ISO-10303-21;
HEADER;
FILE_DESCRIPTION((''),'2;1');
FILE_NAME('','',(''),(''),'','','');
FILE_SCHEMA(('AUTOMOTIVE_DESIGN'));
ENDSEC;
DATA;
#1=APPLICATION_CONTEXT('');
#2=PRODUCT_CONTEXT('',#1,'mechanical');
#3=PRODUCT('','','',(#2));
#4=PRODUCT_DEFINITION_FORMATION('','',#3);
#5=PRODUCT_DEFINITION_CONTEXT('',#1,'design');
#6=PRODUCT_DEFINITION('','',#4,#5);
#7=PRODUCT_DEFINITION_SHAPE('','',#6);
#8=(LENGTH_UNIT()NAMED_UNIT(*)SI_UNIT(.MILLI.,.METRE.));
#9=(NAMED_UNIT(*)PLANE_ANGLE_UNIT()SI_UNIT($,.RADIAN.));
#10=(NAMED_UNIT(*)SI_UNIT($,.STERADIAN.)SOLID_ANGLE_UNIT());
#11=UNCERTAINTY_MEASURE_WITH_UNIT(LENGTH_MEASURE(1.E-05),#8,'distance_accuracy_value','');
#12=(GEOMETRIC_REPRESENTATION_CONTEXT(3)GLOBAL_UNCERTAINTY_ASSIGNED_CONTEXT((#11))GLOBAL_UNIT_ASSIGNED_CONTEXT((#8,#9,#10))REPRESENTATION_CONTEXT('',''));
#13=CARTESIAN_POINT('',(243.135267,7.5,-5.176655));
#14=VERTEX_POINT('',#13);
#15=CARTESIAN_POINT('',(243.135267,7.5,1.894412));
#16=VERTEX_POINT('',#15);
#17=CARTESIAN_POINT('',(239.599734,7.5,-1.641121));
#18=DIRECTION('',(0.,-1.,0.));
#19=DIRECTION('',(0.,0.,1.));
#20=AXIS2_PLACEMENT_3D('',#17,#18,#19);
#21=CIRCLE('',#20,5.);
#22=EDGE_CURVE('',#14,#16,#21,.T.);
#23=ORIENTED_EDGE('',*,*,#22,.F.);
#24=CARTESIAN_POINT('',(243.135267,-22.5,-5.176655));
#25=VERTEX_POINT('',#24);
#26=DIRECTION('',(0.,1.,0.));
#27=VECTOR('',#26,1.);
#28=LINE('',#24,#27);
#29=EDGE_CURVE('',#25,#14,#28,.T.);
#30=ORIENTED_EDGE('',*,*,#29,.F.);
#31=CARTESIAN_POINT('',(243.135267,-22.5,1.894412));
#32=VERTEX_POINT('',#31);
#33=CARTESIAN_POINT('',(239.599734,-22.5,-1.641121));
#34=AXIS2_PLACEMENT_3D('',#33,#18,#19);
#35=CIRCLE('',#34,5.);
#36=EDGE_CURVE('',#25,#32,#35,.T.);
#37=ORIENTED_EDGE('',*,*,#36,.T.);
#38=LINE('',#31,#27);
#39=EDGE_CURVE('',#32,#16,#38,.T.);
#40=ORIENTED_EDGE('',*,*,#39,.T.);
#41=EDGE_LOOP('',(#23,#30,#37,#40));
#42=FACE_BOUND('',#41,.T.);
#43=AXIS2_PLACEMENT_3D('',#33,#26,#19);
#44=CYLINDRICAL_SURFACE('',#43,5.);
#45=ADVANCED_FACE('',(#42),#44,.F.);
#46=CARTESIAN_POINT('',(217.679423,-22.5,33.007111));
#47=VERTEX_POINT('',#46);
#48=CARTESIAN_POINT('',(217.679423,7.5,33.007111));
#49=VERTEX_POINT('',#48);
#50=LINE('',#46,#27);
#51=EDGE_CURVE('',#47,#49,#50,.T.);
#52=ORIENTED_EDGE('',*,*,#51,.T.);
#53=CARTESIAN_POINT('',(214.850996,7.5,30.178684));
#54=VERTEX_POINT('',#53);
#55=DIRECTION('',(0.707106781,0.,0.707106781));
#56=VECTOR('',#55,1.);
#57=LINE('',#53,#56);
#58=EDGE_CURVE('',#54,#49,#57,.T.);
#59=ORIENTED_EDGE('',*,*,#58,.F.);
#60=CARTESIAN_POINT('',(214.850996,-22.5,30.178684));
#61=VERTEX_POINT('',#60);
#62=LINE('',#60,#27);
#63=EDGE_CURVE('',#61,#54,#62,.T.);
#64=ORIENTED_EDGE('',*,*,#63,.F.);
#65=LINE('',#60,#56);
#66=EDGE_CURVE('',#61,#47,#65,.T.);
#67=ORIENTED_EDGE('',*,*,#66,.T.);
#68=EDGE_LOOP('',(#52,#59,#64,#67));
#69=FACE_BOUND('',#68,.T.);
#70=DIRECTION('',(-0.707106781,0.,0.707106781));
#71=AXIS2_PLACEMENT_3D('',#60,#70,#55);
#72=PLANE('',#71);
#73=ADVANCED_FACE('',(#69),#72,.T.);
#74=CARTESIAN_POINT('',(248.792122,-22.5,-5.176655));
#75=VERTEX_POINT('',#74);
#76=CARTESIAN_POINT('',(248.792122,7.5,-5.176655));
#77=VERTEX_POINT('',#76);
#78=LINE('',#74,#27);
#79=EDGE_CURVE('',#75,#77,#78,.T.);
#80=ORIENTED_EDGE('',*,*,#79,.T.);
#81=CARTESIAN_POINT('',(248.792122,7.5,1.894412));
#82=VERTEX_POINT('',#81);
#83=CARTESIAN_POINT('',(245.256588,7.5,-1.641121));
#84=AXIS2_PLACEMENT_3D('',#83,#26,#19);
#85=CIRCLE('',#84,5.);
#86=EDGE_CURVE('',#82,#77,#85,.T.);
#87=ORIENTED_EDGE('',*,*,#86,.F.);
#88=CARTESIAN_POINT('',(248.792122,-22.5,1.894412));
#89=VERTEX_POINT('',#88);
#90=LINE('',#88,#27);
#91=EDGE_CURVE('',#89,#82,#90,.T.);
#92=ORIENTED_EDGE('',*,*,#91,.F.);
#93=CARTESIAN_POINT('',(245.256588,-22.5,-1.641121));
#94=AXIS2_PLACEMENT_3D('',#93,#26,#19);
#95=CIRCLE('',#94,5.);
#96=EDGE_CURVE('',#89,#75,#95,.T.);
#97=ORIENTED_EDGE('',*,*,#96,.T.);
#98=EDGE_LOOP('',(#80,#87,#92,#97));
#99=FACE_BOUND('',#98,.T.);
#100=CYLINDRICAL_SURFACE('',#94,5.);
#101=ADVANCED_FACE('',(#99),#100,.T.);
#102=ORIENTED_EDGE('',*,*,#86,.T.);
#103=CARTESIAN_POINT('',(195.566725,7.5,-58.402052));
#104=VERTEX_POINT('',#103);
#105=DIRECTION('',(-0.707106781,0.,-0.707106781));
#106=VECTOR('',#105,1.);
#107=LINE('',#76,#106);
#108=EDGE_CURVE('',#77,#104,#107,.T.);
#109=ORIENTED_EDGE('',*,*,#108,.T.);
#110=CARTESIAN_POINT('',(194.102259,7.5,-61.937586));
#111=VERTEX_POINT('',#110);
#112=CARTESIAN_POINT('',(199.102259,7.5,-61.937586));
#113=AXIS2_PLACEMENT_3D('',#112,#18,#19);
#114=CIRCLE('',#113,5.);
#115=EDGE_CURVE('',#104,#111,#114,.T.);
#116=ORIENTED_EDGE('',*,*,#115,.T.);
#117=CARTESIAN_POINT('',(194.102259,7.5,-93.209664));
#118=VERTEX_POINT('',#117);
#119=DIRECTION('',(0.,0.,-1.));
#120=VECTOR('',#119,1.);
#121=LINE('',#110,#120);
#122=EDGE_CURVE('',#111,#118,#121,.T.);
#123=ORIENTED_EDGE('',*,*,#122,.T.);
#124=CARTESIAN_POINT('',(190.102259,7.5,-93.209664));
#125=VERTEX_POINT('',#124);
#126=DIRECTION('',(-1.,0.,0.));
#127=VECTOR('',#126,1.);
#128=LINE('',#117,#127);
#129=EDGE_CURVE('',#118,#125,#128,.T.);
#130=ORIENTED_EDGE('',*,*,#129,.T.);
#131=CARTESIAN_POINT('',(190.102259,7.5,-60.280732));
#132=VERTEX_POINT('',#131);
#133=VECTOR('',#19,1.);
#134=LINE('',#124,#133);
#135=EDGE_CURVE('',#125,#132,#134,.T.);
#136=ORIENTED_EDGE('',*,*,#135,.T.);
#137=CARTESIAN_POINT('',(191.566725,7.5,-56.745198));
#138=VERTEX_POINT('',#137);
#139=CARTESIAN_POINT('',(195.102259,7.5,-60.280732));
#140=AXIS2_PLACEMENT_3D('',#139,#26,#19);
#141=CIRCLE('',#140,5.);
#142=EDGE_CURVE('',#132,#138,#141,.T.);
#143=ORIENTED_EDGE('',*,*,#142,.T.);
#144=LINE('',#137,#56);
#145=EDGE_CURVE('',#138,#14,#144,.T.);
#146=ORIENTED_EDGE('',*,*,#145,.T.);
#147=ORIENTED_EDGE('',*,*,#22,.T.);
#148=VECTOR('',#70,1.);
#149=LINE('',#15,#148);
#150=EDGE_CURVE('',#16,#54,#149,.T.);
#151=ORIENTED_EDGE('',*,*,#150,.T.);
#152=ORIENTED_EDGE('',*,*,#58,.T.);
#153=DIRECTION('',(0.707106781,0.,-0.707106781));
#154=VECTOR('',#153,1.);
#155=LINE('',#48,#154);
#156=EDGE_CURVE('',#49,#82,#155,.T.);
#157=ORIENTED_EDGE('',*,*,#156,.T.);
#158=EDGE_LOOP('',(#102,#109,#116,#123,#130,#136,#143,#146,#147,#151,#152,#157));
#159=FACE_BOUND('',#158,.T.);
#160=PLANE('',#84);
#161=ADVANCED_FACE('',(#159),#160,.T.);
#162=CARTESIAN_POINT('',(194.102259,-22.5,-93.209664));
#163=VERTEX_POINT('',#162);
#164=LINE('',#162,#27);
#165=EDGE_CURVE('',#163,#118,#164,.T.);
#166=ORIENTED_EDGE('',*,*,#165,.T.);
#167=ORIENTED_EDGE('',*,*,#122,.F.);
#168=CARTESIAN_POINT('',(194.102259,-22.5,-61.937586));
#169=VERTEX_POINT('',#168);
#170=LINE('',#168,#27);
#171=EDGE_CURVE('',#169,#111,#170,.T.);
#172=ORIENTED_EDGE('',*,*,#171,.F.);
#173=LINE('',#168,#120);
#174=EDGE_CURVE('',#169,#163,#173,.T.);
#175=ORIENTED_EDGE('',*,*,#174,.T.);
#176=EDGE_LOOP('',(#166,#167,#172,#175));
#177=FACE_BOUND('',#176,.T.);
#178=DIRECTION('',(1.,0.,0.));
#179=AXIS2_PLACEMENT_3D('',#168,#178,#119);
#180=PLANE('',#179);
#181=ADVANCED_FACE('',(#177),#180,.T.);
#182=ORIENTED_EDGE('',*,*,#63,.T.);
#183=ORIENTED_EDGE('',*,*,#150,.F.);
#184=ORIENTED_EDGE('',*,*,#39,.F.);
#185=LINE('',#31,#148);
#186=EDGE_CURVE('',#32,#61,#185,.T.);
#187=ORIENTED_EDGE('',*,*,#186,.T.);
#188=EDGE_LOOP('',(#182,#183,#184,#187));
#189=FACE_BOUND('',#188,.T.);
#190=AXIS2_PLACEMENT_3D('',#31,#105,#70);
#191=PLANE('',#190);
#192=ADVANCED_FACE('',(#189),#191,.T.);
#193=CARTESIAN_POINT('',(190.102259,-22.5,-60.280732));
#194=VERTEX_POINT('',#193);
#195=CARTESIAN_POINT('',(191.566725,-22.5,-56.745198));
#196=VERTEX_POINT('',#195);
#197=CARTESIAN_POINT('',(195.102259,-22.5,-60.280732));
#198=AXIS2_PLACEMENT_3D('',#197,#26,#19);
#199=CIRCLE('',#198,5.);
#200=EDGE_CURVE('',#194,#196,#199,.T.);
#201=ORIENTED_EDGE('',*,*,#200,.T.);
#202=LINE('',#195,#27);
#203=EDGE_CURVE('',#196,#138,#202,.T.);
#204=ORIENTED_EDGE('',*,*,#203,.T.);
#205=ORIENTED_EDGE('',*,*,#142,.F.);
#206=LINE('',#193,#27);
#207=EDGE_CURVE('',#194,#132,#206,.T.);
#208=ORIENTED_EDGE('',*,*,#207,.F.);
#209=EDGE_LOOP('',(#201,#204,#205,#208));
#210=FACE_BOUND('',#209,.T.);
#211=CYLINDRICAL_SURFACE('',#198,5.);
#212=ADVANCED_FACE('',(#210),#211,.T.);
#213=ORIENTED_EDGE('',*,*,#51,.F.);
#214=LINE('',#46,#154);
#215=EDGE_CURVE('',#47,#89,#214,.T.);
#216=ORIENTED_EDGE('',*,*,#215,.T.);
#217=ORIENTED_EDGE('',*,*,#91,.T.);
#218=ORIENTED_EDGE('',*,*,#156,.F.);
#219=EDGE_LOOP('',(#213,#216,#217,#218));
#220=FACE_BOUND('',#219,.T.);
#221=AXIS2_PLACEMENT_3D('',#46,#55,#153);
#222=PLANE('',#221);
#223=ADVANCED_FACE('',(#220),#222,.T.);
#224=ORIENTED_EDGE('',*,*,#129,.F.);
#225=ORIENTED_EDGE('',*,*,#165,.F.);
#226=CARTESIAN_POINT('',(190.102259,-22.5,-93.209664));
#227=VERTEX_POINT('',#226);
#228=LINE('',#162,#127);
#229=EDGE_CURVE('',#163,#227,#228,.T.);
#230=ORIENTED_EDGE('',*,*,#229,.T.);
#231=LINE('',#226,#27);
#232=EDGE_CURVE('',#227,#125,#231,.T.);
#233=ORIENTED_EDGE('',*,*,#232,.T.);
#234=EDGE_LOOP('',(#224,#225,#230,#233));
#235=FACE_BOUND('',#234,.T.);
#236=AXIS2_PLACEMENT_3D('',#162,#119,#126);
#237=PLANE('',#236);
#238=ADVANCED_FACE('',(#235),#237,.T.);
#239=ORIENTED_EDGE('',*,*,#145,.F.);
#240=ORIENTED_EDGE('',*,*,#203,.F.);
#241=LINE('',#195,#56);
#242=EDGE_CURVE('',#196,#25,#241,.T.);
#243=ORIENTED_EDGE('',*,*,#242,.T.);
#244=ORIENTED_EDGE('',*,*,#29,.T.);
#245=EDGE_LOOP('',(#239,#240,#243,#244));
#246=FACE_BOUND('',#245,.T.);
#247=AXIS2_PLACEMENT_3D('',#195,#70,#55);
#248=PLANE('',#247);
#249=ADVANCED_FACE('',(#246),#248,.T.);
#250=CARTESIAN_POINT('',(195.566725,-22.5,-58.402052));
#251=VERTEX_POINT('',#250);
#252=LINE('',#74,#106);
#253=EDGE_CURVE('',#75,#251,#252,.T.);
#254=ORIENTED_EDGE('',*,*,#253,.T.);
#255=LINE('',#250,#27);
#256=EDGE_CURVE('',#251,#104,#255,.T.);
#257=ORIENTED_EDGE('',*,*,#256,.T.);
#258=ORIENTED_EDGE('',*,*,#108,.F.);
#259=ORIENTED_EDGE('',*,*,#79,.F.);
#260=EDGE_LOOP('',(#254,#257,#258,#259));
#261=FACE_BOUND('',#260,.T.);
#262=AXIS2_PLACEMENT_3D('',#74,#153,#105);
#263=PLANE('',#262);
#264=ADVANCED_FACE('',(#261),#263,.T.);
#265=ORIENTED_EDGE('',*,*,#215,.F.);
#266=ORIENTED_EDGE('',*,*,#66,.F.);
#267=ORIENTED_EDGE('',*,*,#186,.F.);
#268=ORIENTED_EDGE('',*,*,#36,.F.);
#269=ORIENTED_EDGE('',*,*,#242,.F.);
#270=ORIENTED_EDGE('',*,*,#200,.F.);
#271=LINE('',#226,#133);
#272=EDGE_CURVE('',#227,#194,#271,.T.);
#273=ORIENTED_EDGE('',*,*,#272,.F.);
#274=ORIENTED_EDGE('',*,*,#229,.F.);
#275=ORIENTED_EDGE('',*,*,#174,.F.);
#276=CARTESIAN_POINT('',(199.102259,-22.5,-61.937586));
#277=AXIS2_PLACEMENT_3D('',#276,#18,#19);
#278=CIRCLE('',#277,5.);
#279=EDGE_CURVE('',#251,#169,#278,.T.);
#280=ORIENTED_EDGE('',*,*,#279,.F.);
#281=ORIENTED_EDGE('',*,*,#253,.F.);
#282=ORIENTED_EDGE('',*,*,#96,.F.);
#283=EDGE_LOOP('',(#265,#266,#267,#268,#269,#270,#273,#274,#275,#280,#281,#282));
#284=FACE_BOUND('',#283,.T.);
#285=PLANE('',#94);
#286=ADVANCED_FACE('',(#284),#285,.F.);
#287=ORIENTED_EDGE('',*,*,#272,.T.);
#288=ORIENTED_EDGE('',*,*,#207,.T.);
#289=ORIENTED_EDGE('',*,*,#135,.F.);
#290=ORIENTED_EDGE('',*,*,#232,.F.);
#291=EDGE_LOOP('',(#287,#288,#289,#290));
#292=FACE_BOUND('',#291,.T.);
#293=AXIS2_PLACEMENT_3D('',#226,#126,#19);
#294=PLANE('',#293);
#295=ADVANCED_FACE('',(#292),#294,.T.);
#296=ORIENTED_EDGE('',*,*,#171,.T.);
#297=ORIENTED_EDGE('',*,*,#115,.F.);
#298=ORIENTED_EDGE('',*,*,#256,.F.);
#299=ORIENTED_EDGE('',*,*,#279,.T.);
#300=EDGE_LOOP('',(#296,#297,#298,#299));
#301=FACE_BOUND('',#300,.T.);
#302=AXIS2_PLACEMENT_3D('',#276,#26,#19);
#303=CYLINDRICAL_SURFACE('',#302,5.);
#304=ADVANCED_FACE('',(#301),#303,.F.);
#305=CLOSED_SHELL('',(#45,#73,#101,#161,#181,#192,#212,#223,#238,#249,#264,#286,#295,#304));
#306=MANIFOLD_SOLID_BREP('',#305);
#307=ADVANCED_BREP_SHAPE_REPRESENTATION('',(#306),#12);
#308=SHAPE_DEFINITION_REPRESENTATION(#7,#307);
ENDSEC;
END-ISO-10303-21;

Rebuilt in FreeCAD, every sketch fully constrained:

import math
import FreeCAD as App
import Part
import Sketcher

V = App.Vector
Q = App.Units.Quantity

doc = App.newDocument("Part")
body = doc.addObject("PartDesign::Body", "Body")

# Sketch on XZ plane
sketch1 = doc.addObject("Sketcher::SketchObject", "Sketch")
body.addObject(sketch1)
sketch1.AttachmentSupport = (doc.XZ_Plane, [""])
sketch1.MapMode = "FlatFace"
sketch1.AttachmentOffset = App.Placement(V(0, 0, -7.5), App.Rotation())
sketch1.addGeometry([
    Part.LineSegment(V(248.792122, -5.176655, 0), V(195.566725, -58.402052, 0)),  # 0
    Part.ArcOfCircle(Part.Circle(V(199.102259, -61.937586, 0), V(0, 0, 1), 5), math.radians(135), math.radians(180)),  # 1
    Part.LineSegment(V(194.102259, -61.937586, 0), V(194.102259, -93.209664, 0)),  # 2
    Part.LineSegment(V(194.102259, -93.209664, 0), V(190.102259, -93.209664, 0)),  # 3
    Part.LineSegment(V(190.102259, -93.209664, 0), V(190.102259, -60.280732, 0)),  # 4
    Part.ArcOfCircle(Part.Circle(V(195.102259, -60.280732, 0), V(0, 0, 1), 5), math.radians(135), math.radians(180)),  # 5
    Part.LineSegment(V(191.566725, -56.745198, 0), V(243.135267, -5.176655, 0)),  # 6
    Part.ArcOfCircle(Part.Circle(V(239.599734, -1.641121, 0), V(0, 0, 1), 5), math.radians(-45), math.radians(45)),  # 7
    Part.LineSegment(V(243.135267, 1.894412, 0), V(214.850996, 30.178684, 0)),  # 8
    Part.LineSegment(V(214.850996, 30.178684, 0), V(217.679423, 33.007111, 0)),  # 9
    Part.LineSegment(V(217.679423, 33.007111, 0), V(248.792122, 1.894412, 0)),  # 10
    Part.ArcOfCircle(Part.Circle(V(245.256588, -1.641121, 0), V(0, 0, 1), 5), math.radians(-45), math.radians(45)),  # 11
], False)
sketch1.addConstraint([
    Sketcher.Constraint("Tangent", 0, 2, 1, 1),
    Sketcher.Constraint("Tangent", 1, 2, 2, 1),
    Sketcher.Constraint("Coincident", 2, 2, 3, 1),
    Sketcher.Constraint("Coincident", 3, 2, 4, 1),
    Sketcher.Constraint("Tangent", 4, 2, 5, 2),
    Sketcher.Constraint("Tangent", 5, 1, 6, 1),
    Sketcher.Constraint("Tangent", 6, 2, 7, 1),
    Sketcher.Constraint("Tangent", 7, 2, 8, 1),
    Sketcher.Constraint("Coincident", 8, 2, 9, 1),
    Sketcher.Constraint("Coincident", 9, 2, 10, 1),
    Sketcher.Constraint("Tangent", 10, 2, 11, 2),
    Sketcher.Constraint("Tangent", 11, 1, 0, 1),
    Sketcher.Constraint("Vertical", 2),
    Sketcher.Constraint("Horizontal", 3),
    Sketcher.Constraint("Vertical", 4),
    Sketcher.Constraint("Equal", 1, 5),
    Sketcher.Constraint("Equal", 5, 7),
    Sketcher.Constraint("Equal", 7, 11),
    Sketcher.Constraint("Parallel", 0, 6),
    Sketcher.Constraint("Perpendicular", 6, 8),
    Sketcher.Constraint("Perpendicular", 8, 9),
    Sketcher.Constraint("Perpendicular", 9, 10),
    Sketcher.Constraint("Horizontal", 7, 3, 11, 3),
    Sketcher.Constraint("Vertical", 6, 2, 7, 2),
    Sketcher.Constraint("Radius", 1, Q("5 mm")),
    Sketcher.Constraint("DistanceX", 3, 2, 3, 1, Q("4 mm")),
    Sketcher.Constraint("Distance", 8, Q("40 mm")),
    Sketcher.Constraint("Distance", 9, Q("4 mm")),
    Sketcher.Constraint("DistanceY", 1, 3, 7, 2, Q("63.831998 mm")),
    Sketcher.Constraint("DistanceY", 2, 2, 2, 1, Q("31.272078 mm")),
    Sketcher.Constraint("DistanceX", -1, 1, 1, 3, Q("199.102259 mm")),
    Sketcher.Constraint("DistanceY", 5, 3, -1, 1, Q("60.280732 mm")),
])
pad1 = doc.addObject("PartDesign::Pad", "Pad")
body.addObject(pad1)
pad1.Profile = sketch1
pad1.Length = 30

doc.recompute()
